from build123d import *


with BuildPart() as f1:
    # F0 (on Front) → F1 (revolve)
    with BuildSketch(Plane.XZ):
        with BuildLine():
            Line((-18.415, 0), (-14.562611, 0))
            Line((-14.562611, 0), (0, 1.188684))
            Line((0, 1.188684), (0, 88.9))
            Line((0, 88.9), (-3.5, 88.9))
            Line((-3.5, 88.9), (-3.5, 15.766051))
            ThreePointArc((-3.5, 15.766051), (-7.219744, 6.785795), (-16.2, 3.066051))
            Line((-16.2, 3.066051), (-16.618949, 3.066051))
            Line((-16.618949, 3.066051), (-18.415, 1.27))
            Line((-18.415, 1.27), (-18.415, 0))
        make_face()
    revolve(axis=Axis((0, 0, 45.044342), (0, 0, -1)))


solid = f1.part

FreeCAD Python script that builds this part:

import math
import FreeCAD as App
import Part
import Sketcher

V = App.Vector
Q = App.Units.Quantity

doc = App.newDocument("Part")
body = doc.addObject("PartDesign::Body", "Body")

sketch1 = body.newObject("Sketcher::SketchObject", "Sketch")
sketch1.AttachmentSupport = (doc.getObject("XZ_Plane"), [""])
sketch1.MapMode = "FlatFace"
sketch1.addGeometry([
    Part.LineSegment(V(-18.41, 0, 0), V(-14.56, 0, 0)),
    Part.LineSegment(V(-14.56, 0, 0), V(0, 1.19, 0)),
    Part.LineSegment(V(0, 1.19, 0), V(0, 88.9, 0)),
    Part.LineSegment(V(0, 88.9, 0), V(-3.5, 88.9, 0)),
    Part.LineSegment(V(-3.5, 88.9, 0), V(-3.5, 15.77, 0)),
    Part.ArcOfCircle(Part.Circle(V(-16.2, 15.77, 0), V(0, 0, 1), 12.7), math.radians(-90), math.radians(0)),
    Part.LineSegment(V(-16.2, 3.07, 0), V(-16.62, 3.07, 0)),
    Part.LineSegment(V(-16.62, 3.07, 0), V(-18.41, 1.27, 0)),
    Part.LineSegment(V(-18.41, 1.27, 0), V(-18.41, 0, 0)),
], False)
sketch1.addConstraint([
    Sketcher.Constraint("Coincident", 0, 2, 1, 1),
    Sketcher.Constraint("Coincident", 1, 2, 2, 1),
    Sketcher.Constraint("Coincident", 2, 2, 3, 1),
    Sketcher.Constraint("Coincident", 3, 2, 4, 1),
    Sketcher.Constraint("Tangent", 4, 2, 5, 2),
    Sketcher.Constraint("Tangent", 5, 1, 6, 1),
    Sketcher.Constraint("Coincident", 6, 2, 7, 1),
    Sketcher.Constraint("Coincident", 7, 2, 8, 1),
    Sketcher.Constraint("Coincident", 8, 2, 0, 1),
    Sketcher.Constraint("Horizontal", 0),
    Sketcher.Constraint("Vertical", 2),
    Sketcher.Constraint("Horizontal", 3),
    Sketcher.Constraint("Vertical", 4),
    Sketcher.Constraint("Horizontal", 6),
    Sketcher.Constraint("Vertical", 8),
    Sketcher.Constraint("PointOnObject", 0, 2, -1),
    Sketcher.Constraint("PointOnObject", 1, 2, -2),
    Sketcher.Constraint("Radius", 5, Q("0.5 in")),
    Sketcher.Constraint("Angle", 7, Q("-135 deg")),
    Sketcher.Constraint("Distance", 7, Q("0.1 in")),
    Sketcher.Constraint("DistanceY", 8, 2, 8, 1, Q("0.05 in")),
    Sketcher.Constraint("DistanceY", -1, 1, 2, 2, Q("3.5 in")),
    Sketcher.Constraint("DistanceX", 7, 2, -1, 1, Q("0.725 in")),
    Sketcher.Constraint("DistanceX", 3, 2, 3, 1, 3.5),
    Sketcher.Constraint("DistanceX", 0, 1, 0, 2, 3.852389),
    Sketcher.Constraint("DistanceY", 2, 1, 2, 2, 87.711316),
])
revolution = body.newObject("PartDesign::Revolution", "Revolution")
revolution.Profile = sketch1
revolution.ReferenceAxis = (sketch1, ["V_Axis"])
revolution.Angle = 360

doc.recompute()
